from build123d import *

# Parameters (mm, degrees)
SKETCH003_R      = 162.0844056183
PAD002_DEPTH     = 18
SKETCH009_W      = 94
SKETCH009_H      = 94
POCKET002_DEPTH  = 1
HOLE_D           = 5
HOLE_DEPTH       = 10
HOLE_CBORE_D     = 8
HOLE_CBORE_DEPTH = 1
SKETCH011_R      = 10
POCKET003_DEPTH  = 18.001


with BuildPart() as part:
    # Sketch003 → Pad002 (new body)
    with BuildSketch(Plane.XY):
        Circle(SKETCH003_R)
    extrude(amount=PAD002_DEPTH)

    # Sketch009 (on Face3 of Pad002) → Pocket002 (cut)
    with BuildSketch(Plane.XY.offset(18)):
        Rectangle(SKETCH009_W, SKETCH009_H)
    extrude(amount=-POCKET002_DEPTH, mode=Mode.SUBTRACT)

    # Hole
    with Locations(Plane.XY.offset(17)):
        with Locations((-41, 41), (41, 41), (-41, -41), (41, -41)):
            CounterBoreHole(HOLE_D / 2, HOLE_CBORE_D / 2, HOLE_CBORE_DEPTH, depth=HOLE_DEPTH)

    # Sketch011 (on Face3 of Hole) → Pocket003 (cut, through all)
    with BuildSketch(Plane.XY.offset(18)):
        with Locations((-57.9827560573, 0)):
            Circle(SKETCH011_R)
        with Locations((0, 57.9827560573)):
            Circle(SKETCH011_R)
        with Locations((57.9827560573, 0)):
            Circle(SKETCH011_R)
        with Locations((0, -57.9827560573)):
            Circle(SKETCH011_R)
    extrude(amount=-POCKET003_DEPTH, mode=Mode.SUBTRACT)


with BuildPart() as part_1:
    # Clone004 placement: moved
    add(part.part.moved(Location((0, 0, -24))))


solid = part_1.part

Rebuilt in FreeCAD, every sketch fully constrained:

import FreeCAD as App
import Part
import Sketcher
Q = App.Units.Quantity

doc = App.newDocument("Part")
body = doc.addObject("PartDesign::Body", "Body")

# Sketch on XY plane
sketch1 = body.newObject("Sketcher::SketchObject", "Sketch")
sketch1.AttachmentSupport = (doc.getObject("XY_Plane"), [""])
sketch1.MapMode = "FlatFace"
sketch1.addGeometry(Part.Circle(App.Vector(0, 0, 0), App.Vector(0, 0, 1), 162), False)
sketch1.addConstraint([
    Sketcher.Constraint("Coincident", 0, 3, -1, 1),
    Sketcher.Constraint("Diameter", 0, Q("324.168811 mm")),
])
pad1 = body.newObject("PartDesign::Pad", "Pad")
pad1.Profile = sketch1
pad1.Length = 18

# Sketch on XY plane
sketch2 = body.newObject("Sketcher::SketchObject", "Sketch001")
sketch2.AttachmentSupport = (doc.getObject("XY_Plane"), [""])
sketch2.MapMode = "FlatFace"
sketch2.AttachmentOffset = App.Placement(App.Vector(0, 0, 18), App.Rotation())
sketch2.addGeometry([
    Part.LineSegment(App.Vector(-47, 47, 0), App.Vector(-47, -47, 0)),
    Part.LineSegment(App.Vector(-47, -47, 0), App.Vector(47, -47, 0)),
    Part.LineSegment(App.Vector(47, -47, 0), App.Vector(47, 47, 0)),
    Part.LineSegment(App.Vector(47, 47, 0), App.Vector(-47, 47, 0)),
], False)
sketch2.addConstraint([
    Sketcher.Constraint("Coincident", 0, 2, 1, 1),
    Sketcher.Constraint("Coincident", 1, 2, 2, 1),
    Sketcher.Constraint("Coincident", 2, 2, 3, 1),
    Sketcher.Constraint("Coincident", 3, 2, 0, 1),
    Sketcher.Constraint("Vertical", 0),
    Sketcher.Constraint("Horizontal", 1),
    Sketcher.Constraint("Vertical", 2),
    Sketcher.Constraint("Horizontal", 3),
    Sketcher.Constraint("Symmetric", 0, 2, 2, 2, -1, 1),
    Sketcher.Constraint("Equal", 3, 0),
    Sketcher.Constraint("DistanceX", 1, 1, 1, 2, Q("94 mm")),
])
pocket1 = body.newObject("PartDesign::Pocket", "Pocket")
pocket1.Profile = sketch2
pocket1.Length = 1

# Sketch on XY plane
sketch3 = body.newObject("Sketcher::SketchObject", "Sketch002")
sketch3.AttachmentSupport = (doc.getObject("XY_Plane"), [""])
sketch3.MapMode = "FlatFace"
sketch3.AttachmentOffset = App.Placement(App.Vector(0, 0, 17), App.Rotation())
sketch3.addGeometry([
    Part.Circle(App.Vector(-41, 41, 0), App.Vector(0, 0, 1), 2.5),
    Part.Circle(App.Vector(41, 41, 0), App.Vector(0, 0, 1), 2.5),
    Part.Circle(App.Vector(-41, -41, 0), App.Vector(0, 0, 1), 2.5),
    Part.Circle(App.Vector(41, -41, 0), App.Vector(0, 0, 1), 2.5),
], False)
sketch3.addConstraint([
    Sketcher.Constraint("Equal", 0, 1),
    Sketcher.Constraint("Equal", 1, 2),
    Sketcher.Constraint("Equal", 2, 3),
    Sketcher.Constraint("Symmetric", 1, 3, 2, 3, -1, 1),
    Sketcher.Constraint("Symmetric", 0, 3, 3, 3, -1, 1),
    Sketcher.Constraint("Symmetric", 0, 3, 1, 3, -2),
    Sketcher.Constraint("Diameter", 0, Q("5 mm")),
    Sketcher.Constraint("DistanceX", 0, 3, -1, 1, Q("41 mm")),
    Sketcher.Constraint("DistanceY", -1, 1, 0, 3, Q("41 mm")),
])
doc.recompute()
hole = body.newObject("PartDesign::Hole", "Hole")
hole.Profile = sketch3
hole.ThreadType = "None"
hole.Diameter = 5
hole.DepthType = "Dimension"
hole.Depth = 10
hole.DrillPoint = "Flat"
hole.HoleCutType = "Counterbore"
hole.HoleCutDiameter = 8
hole.HoleCutDepth = 1

# Sketch on XY plane
sketch4 = body.newObject("Sketcher::SketchObject", "Sketch003")
sketch4.AttachmentSupport = (doc.getObject("XY_Plane"), [""])
sketch4.MapMode = "FlatFace"
sketch4.AttachmentOffset = App.Placement(App.Vector(0, 0, 18), App.Rotation())
sketch4.addGeometry([
    Part.Circle(App.Vector(-58, 0, 0), App.Vector(0, 0, 1), 10),
    Part.Circle(App.Vector(0, 58, 0), App.Vector(0, 0, 1), 10),
    Part.Circle(App.Vector(58, 0, 0), App.Vector(0, 0, 1), 10),
    Part.Circle(App.Vector(0, -58, 0), App.Vector(0, 0, 1), 10),
], False)
sketch4.addConstraint([
    Sketcher.Constraint("Equal", 0, 1),
    Sketcher.Constraint("Equal", 1, 2),
    Sketcher.Constraint("Equal", 2, 3),
    Sketcher.Constraint("Symmetric", 0, 3, 2, 3, -1, 1),
    Sketcher.Constraint("Symmetric", 1, 3, 3, 3, -1, 1),
    Sketcher.Constraint("PointOnObject", 0, 3, -1),
    Sketcher.Constraint("PointOnObject", 1, 3, -2),
    Sketcher.Constraint("Diameter", 0, Q("20 mm")),
    Sketcher.Constraint("DistanceX", 0, 3, -1, 1, Q("57.982756 mm")),
    Sketcher.Constraint("DistanceY", -1, 1, 1, 3, Q("57.982756 mm")),
])
pocket2 = body.newObject("PartDesign::Pocket", "Pocket001")
pocket2.Profile = sketch4
pocket2.Type = "ThroughAll"
body2 = doc.addObject("PartDesign::Body", "Body001")
doc.recompute()

body.Placement = App.Placement(App.Vector(0, 0, -24), App.Rotation(App.Vector(0, 0, 1), 0))
boolean = body2.newObject("PartDesign::Boolean", "Boolean")
boolean.Type = "Fuse"
boolean.addObjects([body])

doc.recompute()
